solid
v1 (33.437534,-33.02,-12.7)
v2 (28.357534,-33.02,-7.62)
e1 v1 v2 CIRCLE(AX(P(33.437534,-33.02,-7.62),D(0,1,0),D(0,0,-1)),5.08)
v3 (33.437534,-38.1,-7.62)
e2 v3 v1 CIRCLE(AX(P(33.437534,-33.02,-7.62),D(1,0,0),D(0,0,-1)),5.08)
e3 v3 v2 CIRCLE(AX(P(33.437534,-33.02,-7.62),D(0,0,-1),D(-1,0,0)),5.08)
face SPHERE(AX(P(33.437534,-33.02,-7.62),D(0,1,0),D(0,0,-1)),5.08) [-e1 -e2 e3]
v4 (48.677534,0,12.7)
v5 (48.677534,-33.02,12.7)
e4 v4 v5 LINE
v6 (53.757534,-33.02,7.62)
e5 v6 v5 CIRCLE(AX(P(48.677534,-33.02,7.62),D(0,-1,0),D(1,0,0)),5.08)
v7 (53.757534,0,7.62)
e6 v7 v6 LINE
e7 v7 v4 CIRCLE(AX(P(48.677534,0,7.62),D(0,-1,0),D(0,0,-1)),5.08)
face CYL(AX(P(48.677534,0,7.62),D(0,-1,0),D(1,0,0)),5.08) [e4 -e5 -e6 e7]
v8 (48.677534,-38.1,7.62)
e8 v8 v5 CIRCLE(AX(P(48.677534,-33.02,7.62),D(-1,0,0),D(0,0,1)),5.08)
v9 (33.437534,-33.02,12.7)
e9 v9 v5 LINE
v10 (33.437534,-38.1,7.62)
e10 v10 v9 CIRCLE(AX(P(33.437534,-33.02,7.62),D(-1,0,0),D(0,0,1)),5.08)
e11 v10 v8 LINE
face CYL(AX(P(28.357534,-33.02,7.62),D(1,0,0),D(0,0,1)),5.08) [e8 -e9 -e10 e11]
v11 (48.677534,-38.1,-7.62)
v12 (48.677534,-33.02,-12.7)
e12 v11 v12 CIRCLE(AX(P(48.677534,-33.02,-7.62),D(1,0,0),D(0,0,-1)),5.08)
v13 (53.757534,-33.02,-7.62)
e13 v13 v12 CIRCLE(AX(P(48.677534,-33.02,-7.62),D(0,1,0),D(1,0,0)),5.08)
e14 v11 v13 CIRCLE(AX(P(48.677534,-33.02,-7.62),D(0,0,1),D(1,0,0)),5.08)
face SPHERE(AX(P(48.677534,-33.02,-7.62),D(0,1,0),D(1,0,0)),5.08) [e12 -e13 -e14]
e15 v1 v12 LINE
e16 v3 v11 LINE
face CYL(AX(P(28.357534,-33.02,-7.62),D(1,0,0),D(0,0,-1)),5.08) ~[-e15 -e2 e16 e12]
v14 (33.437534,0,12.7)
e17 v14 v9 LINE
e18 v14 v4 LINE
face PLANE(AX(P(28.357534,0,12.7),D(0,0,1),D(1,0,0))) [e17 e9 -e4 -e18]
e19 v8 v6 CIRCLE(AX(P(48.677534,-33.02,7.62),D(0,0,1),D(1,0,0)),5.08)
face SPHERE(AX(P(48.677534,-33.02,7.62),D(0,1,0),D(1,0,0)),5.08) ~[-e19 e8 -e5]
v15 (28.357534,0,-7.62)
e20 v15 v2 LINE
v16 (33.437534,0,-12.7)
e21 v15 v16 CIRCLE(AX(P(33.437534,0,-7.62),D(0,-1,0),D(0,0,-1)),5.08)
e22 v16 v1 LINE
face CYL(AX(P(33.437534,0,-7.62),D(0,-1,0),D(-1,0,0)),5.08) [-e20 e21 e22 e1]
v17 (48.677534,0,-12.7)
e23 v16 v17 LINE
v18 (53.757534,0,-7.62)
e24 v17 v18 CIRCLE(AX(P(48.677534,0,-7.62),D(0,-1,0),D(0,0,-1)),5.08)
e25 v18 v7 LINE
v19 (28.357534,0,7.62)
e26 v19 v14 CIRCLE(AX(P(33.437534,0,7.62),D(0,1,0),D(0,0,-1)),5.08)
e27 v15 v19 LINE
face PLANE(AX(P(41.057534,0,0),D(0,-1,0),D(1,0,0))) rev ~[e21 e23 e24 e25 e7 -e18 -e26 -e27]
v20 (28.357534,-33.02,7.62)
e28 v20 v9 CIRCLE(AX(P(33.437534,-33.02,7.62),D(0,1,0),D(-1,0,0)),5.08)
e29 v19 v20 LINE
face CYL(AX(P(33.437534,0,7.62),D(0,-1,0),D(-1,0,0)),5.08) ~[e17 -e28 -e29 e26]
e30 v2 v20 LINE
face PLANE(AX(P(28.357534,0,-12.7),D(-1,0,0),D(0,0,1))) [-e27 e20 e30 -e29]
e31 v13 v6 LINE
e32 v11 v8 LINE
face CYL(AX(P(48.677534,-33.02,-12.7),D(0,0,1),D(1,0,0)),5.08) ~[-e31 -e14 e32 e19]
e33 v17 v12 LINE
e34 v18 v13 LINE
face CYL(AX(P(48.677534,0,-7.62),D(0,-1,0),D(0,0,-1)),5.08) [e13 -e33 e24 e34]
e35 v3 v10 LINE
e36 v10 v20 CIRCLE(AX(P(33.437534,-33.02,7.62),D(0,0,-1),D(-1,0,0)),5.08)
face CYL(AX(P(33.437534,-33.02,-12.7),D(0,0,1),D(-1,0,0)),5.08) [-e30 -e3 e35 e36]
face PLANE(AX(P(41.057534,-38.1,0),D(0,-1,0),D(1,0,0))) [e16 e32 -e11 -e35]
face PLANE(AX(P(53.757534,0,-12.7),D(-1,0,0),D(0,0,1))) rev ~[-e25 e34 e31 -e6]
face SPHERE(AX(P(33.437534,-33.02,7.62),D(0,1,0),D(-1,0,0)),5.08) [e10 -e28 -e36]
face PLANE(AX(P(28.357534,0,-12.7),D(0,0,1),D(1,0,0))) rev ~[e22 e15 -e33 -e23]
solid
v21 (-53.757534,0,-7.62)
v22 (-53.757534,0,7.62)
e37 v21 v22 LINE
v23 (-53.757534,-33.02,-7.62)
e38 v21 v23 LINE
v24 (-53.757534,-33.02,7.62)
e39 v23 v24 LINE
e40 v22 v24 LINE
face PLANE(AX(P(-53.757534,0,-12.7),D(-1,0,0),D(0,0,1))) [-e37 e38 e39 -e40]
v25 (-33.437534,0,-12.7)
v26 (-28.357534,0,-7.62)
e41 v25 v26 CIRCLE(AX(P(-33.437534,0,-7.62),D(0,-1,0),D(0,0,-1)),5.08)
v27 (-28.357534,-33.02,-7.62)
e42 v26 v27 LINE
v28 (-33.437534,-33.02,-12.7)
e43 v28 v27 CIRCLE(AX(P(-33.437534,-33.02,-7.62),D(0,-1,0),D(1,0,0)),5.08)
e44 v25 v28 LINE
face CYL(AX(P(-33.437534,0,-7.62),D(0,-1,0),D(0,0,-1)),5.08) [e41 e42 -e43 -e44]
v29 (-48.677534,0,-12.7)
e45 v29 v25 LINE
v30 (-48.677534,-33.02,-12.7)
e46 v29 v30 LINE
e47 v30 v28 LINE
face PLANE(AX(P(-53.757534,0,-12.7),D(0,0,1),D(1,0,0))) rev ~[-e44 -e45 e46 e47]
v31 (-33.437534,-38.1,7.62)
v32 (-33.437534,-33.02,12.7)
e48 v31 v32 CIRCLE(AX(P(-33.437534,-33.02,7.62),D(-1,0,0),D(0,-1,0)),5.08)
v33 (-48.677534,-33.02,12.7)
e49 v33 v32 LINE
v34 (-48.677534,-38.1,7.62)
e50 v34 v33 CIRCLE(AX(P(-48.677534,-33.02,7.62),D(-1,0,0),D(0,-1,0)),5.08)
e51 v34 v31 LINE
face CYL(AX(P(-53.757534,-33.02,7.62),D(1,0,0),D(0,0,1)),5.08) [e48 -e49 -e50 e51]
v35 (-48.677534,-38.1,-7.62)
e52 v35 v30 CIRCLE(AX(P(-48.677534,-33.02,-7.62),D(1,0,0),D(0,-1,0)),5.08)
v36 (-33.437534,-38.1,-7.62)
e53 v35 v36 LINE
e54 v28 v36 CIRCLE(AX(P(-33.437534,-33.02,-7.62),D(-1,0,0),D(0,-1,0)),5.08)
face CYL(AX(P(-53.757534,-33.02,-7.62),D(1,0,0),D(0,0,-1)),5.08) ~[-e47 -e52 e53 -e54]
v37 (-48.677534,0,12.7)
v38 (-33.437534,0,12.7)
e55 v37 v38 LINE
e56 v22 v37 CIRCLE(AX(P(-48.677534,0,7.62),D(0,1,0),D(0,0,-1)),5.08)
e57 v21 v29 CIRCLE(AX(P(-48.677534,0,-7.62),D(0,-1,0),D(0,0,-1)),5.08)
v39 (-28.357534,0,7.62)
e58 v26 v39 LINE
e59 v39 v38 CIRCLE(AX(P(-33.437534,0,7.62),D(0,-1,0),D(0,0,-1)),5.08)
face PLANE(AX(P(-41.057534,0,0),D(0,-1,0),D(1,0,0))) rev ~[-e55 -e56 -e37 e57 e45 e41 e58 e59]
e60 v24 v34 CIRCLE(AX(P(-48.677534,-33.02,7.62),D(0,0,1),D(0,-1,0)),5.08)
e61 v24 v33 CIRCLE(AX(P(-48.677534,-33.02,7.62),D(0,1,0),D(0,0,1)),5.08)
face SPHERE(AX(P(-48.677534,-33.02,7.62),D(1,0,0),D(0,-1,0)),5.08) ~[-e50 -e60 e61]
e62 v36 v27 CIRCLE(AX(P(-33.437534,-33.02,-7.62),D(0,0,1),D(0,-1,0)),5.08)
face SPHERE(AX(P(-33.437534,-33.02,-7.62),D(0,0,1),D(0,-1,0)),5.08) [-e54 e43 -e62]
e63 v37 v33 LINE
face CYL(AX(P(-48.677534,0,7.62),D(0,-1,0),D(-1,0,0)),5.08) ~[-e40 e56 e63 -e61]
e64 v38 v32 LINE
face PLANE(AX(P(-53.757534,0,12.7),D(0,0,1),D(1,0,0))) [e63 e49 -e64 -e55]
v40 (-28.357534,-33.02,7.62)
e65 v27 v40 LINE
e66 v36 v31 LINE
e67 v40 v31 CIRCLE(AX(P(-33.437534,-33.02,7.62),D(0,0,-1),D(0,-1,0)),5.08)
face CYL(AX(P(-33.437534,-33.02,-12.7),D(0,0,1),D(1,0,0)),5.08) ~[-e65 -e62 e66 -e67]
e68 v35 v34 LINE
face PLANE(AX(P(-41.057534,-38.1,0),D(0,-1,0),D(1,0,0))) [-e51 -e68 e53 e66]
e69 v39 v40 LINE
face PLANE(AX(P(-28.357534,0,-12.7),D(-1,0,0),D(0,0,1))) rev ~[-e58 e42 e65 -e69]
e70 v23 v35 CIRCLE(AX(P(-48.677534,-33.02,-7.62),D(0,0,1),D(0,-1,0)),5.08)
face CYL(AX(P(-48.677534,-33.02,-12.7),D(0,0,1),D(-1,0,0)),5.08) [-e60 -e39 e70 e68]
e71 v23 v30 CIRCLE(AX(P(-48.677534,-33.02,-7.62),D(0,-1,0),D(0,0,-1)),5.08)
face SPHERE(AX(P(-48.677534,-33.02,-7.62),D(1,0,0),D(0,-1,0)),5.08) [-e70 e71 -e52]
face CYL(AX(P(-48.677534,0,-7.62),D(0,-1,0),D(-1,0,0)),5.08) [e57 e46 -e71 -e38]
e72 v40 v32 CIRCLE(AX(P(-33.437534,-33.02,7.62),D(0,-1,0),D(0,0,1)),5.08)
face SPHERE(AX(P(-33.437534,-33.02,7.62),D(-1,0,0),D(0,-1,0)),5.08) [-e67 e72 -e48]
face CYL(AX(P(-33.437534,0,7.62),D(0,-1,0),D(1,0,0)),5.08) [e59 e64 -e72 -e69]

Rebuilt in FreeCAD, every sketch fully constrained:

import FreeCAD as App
import Part
import Sketcher
Q = App.Units.Quantity


def edges_at(feature, points):
    """Names of the edges that pass closest to the given points."""
    edges = feature.Shape.Edges
    near = lambda p: min(range(len(edges)), key=lambda i: edges[i].distToShape(Part.Vertex(*p))[0])
    return sorted({f"Edge{near(p) + 1}" for p in points})


def add_polygon(sketch, points):
    """Adds a closed chain of lines whose ends are joined by coincident constraints."""
    first, n = sketch.GeometryCount, len(points)
    for a, b in zip(points, points[1:] + points[:1]):
        sketch.addGeometry(Part.LineSegment(App.Vector(*a, 0), App.Vector(*b, 0)), False)
    for i in range(n):
        sketch.addConstraint(Sketcher.Constraint("Coincident", first + i, 2, first + (i + 1) % n, 1))

doc = App.newDocument("Part")
body = doc.addObject("PartDesign::Body", "Body")
body.AllowCompound = True

sketch1 = body.newObject("Sketcher::SketchObject", "Sketch")
sketch1.AttachmentSupport = (doc.getObject("XZ_Plane"), [""])
sketch1.MapMode = "FlatFace"
add_polygon(sketch1, [(-54, 13), (-54, -13), (-28, -13), (-28, 13)])
add_polygon(sketch1, [(28, 13), (28, -13), (54, -13), (54, 13)])
sketch1.addConstraint([
    Sketcher.Constraint("Vertical", 0),
    Sketcher.Constraint("Horizontal", 1),
    Sketcher.Constraint("Vertical", 2),
    Sketcher.Constraint("Horizontal", 3),
    Sketcher.Constraint("Vertical", 4),
    Sketcher.Constraint("Horizontal", 5),
    Sketcher.Constraint("Vertical", 6),
    Sketcher.Constraint("Horizontal", 7),
    Sketcher.Constraint("Symmetric", 2, 2, 4, 2, -1, 1),
    Sketcher.Constraint("Symmetric", 0, 2, 6, 2, -1, 1),
    Sketcher.Constraint("Horizontal", 1, 2, 4, 2),
    Sketcher.Constraint("Equal", 7, 0),
    Sketcher.Constraint("DistanceX", 1, 1, 1, 2, Q("1 in")),
    Sketcher.Constraint("DistanceX", 1, 2, 4, 2, Q("56.715068 mm")),
])
pad1 = body.newObject("PartDesign::Pad", "Pad")
pad1.Profile = sketch1
pad1.Length = Q("1.5 in")
doc.recompute()

fillet = body.newObject("PartDesign::Fillet", "Fillet")
fillet.Base = (pad1, edges_at(pad1, [
    (-41.058, -38.1, 12.7),
    (-28.358, -38.1, 0),
    (-41.058, -38.1, -12.7),
    (-53.758, -38.1, 0),
    (-28.358, -19.05, -12.7),
    (-53.758, -19.05, -12.7),
    (-28.358, -19.05, 12.7),
    (-53.758, -19.05, 12.7),
    (53.758, -19.05, 12.7),
    (28.358, -19.05, 12.7),
    (53.758, -19.05, -12.7),
    (28.358, -19.05, -12.7),
    (53.758, -38.1, 0),
    (41.058, -38.1, -12.7),
    (28.358, -38.1, 0),
    (41.058, -38.1, 12.7),
]))
fillet.Radius = Q("0.2 in")

doc.recompute()
